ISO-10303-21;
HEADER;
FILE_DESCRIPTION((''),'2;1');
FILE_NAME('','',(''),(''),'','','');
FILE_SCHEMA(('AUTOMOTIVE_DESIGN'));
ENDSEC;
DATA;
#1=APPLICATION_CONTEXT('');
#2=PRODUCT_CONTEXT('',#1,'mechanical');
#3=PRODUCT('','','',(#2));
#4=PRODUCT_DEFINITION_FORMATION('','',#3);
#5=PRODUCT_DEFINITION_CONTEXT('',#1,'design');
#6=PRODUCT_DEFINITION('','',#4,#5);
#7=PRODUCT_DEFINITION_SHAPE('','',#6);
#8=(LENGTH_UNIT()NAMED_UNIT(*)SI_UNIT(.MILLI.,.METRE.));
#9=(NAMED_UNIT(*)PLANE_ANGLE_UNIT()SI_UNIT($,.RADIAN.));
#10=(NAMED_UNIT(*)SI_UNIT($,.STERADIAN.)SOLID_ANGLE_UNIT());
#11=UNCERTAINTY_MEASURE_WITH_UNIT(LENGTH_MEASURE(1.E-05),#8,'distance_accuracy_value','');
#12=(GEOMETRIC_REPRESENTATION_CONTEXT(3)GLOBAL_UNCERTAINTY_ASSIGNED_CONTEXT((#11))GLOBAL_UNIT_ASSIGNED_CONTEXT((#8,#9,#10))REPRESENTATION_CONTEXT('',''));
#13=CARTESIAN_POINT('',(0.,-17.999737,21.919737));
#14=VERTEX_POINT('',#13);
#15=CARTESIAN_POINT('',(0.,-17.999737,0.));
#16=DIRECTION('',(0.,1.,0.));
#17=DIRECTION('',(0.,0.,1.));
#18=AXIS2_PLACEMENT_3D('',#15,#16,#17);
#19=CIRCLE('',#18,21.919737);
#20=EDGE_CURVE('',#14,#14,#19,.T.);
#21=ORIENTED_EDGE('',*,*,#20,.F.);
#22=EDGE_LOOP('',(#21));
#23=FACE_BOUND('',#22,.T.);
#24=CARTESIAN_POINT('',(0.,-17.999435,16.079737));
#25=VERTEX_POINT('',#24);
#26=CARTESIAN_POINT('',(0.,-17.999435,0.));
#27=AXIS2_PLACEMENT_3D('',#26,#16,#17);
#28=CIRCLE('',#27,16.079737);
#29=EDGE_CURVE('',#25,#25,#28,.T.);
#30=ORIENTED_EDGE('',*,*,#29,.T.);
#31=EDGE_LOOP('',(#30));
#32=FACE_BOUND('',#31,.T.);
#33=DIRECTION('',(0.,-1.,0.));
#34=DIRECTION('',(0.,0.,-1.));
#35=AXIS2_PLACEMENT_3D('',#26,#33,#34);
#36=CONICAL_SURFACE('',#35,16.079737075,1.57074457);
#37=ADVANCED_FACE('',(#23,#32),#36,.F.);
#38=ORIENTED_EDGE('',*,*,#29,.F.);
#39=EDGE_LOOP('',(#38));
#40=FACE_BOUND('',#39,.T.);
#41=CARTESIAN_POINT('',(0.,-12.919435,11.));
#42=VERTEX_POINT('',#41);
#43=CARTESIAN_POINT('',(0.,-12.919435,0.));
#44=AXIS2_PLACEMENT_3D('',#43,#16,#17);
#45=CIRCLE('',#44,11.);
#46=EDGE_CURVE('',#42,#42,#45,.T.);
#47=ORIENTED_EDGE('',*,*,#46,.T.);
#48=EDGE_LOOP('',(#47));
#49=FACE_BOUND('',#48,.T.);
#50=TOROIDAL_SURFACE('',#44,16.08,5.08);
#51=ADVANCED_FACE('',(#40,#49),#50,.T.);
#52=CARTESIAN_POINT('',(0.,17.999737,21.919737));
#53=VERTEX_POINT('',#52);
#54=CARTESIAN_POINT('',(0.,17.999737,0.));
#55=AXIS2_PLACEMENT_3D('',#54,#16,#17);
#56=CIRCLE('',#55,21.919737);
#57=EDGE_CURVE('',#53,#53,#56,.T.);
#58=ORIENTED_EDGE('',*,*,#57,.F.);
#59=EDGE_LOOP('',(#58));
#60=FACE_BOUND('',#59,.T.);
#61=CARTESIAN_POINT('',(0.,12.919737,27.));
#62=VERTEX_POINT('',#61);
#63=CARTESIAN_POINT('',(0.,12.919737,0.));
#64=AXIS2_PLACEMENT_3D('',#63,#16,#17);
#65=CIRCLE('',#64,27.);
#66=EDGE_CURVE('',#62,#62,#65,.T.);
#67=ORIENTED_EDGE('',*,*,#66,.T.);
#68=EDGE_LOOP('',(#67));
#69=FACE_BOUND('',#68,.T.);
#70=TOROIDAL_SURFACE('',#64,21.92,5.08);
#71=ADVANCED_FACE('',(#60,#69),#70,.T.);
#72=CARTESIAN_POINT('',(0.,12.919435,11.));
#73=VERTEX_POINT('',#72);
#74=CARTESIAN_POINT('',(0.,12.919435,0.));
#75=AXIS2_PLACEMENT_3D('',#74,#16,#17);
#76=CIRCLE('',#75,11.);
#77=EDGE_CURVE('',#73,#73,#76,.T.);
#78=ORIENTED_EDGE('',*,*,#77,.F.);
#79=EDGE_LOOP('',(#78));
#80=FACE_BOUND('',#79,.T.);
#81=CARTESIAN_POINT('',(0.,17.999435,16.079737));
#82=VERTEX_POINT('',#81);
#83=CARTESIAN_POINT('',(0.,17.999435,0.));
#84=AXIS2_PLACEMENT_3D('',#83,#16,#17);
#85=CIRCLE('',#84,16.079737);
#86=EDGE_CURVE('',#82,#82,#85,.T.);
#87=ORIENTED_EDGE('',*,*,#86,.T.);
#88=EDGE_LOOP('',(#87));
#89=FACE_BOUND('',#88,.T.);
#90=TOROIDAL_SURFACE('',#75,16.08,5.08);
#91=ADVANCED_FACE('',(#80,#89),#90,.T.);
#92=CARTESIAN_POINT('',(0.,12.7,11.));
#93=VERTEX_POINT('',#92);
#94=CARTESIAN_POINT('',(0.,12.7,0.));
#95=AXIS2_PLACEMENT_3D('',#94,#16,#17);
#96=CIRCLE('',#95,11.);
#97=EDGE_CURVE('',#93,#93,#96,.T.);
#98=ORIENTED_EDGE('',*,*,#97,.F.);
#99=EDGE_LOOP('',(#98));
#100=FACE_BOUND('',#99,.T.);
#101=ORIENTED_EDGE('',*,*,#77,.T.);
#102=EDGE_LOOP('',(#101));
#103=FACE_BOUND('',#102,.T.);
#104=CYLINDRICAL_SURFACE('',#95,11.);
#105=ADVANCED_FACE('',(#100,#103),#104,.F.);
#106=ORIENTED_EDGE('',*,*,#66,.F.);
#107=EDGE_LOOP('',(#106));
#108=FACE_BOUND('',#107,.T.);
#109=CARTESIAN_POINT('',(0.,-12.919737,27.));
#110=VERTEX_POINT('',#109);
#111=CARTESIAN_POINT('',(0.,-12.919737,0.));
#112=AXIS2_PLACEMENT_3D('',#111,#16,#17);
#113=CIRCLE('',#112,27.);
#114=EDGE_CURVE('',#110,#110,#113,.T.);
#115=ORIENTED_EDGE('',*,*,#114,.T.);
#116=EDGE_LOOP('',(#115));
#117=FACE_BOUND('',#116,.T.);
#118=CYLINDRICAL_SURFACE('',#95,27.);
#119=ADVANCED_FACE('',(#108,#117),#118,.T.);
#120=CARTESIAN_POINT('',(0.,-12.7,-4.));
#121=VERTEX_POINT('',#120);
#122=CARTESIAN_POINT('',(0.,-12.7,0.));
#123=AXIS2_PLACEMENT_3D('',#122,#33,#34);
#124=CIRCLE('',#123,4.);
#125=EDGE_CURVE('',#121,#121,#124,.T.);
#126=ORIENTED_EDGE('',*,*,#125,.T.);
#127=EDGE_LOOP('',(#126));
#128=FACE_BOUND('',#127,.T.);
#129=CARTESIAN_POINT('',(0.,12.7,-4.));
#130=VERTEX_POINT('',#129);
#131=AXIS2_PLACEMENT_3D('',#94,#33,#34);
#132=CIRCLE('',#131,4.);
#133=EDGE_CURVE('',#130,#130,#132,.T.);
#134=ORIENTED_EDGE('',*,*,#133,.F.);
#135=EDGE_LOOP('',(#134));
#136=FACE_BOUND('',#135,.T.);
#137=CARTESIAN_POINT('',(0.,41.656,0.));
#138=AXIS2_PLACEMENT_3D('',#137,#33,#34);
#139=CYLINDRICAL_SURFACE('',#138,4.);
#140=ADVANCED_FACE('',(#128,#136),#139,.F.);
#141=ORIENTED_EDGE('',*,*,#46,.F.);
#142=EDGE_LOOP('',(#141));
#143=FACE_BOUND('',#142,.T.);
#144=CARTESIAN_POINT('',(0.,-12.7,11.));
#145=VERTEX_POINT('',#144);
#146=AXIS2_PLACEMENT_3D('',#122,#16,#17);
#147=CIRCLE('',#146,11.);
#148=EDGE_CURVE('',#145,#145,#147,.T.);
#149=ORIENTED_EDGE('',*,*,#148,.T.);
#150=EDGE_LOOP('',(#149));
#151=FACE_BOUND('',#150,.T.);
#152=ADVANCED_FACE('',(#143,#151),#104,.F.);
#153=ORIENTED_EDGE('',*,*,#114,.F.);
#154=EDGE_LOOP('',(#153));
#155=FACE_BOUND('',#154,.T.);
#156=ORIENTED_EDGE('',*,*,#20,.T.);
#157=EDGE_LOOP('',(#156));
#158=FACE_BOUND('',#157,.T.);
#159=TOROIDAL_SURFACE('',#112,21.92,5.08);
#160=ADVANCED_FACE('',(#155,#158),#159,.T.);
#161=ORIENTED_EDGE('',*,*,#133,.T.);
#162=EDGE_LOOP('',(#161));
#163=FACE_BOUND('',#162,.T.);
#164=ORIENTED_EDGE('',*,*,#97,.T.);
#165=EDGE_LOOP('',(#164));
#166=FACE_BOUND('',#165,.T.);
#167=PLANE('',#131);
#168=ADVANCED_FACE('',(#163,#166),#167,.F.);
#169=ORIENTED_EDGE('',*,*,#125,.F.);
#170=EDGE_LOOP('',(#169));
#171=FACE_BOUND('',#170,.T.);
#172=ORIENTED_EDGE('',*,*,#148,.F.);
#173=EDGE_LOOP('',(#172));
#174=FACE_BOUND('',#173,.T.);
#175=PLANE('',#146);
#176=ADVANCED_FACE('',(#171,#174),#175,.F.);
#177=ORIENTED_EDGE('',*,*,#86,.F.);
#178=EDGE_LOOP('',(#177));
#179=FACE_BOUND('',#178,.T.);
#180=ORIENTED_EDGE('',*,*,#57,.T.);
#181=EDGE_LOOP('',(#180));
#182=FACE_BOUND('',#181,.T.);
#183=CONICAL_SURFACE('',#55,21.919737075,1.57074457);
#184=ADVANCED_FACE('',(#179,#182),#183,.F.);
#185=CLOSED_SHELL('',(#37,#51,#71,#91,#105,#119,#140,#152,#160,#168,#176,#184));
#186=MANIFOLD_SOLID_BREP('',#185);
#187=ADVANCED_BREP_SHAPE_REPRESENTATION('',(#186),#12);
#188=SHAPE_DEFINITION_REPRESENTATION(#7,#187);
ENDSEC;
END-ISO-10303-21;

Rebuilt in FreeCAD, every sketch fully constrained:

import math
import FreeCAD as App
import Part
import Sketcher

V = App.Vector
Q = App.Units.Quantity

doc = App.newDocument("Part")
body = doc.addObject("PartDesign::Body", "Body")

sketch1 = body.newObject("Sketcher::SketchObject", "Sketch")
sketch1.AttachmentSupport = (doc.getObject("XY_Plane"), [""])
sketch1.MapMode = "FlatFace"
sketch1.addGeometry([
    Part.LineSegment(V(0, 12.7, 0), V(0, -12.7, 0)),
    Part.LineSegment(V(0, -12.7, 0), V(11, -12.7, 0)),
    Part.LineSegment(V(11, -12.7, 0), V(11, -12.919435, 0)),
    Part.ArcOfCircle(Part.Circle(V(16.08, -12.919435, 0), V(0, 0, 1), 5.08), math.radians(-180), math.radians(-90.002965)),
    Part.LineSegment(V(16.079737, -17.999435, 0), V(21.919737, -17.999737, 0)),
    Part.ArcOfCircle(Part.Circle(V(21.92, -12.919737, 0), V(0, 0, 1), 5.08), math.radians(-90.002965), math.radians(0)),
    Part.LineSegment(V(27, -12.919737, 0), V(27, 12.919737, 0)),
    Part.ArcOfCircle(Part.Circle(V(21.92, 12.919737, 0), V(0, 0, 1), 5.08), math.radians(0), math.radians(90.002965)),
    Part.LineSegment(V(21.919737, 17.999737, 0), V(16.079737, 17.999435, 0)),
    Part.ArcOfCircle(Part.Circle(V(16.08, 12.919435, 0), V(0, 0, 1), 5.08), math.radians(90.002965), math.radians(180)),
    Part.LineSegment(V(11, 12.919435, 0), V(11, 12.7, 0)),
    Part.LineSegment(V(11, 12.7, 0), V(0, 12.7, 0)),
], False)
sketch1.addConstraint([
    Sketcher.Constraint("Coincident", 0, 2, 1, 1),
    Sketcher.Constraint("Coincident", 1, 2, 2, 1),
    Sketcher.Constraint("Tangent", 2, 2, 3, 1),
    Sketcher.Constraint("Tangent", 3, 2, 4, 1),
    Sketcher.Constraint("Tangent", 4, 2, 5, 1),
    Sketcher.Constraint("Tangent", 5, 2, 6, 1),
    Sketcher.Constraint("Tangent", 6, 2, 7, 1),
    Sketcher.Constraint("Tangent", 7, 2, 8, 1),
    Sketcher.Constraint("Tangent", 8, 2, 9, 1),
    Sketcher.Constraint("Tangent", 9, 2, 10, 1),
    Sketcher.Constraint("Coincident", 10, 2, 11, 1),
    Sketcher.Constraint("Coincident", 11, 2, 0, 1),
    Sketcher.Constraint("Vertical", 0),
    Sketcher.Constraint("Horizontal", 1),
    Sketcher.Constraint("Vertical", 2),
    Sketcher.Constraint("Vertical", 6),
    Sketcher.Constraint("Vertical", 10),
    Sketcher.Constraint("Horizontal", 11),
    Sketcher.Constraint("Equal", 3, 5),
    Sketcher.Constraint("Equal", 5, 7),
    Sketcher.Constraint("Equal", 7, 9),
    Sketcher.Constraint("Symmetric", 0, 2, 11, 2, -1, 1),
    Sketcher.Constraint("Symmetric", 3, 3, 9, 3, -1),
    Sketcher.Constraint("Vertical", 4, 2, 7, 2),
    Sketcher.Constraint("Radius", 3, Q("0.2 in")),
    Sketcher.Constraint("DistanceY", 0, 2, 0, 1, Q("1 in")),
    Sketcher.Constraint("DistanceX", 1, 1, 1, 2, Q("11 mm")),
    Sketcher.Constraint("Distance", 4, Q("5.84 mm")),
    Sketcher.Constraint("DistanceY", 2, 2, 2, 1, Q("0.219435 mm")),
    Sketcher.Constraint("DistanceY", 6, 1, 6, 2, Q("25.839474 mm")),
])
revolution = body.newObject("PartDesign::Revolution", "Revolution")
revolution.Profile = sketch1
revolution.ReferenceAxis = (sketch1, ["V_Axis"])
revolution.Angle = 360

sketch2 = body.newObject("Sketcher::SketchObject", "Sketch001")
sketch2.AttachmentSupport = (doc.getObject("XZ_Plane"), [""])
sketch2.MapMode = "FlatFace"
sketch2.AttachmentOffset = App.Placement(V(0, 0, 0.5 * 25.4), App.Rotation())
sketch2.addGeometry(Part.Circle(V(0, 0, 0), V(0, 0, 1), 4), False)
sketch2.addConstraint([
    Sketcher.Constraint("Coincident", 0, 3, -1, 1),
    Sketcher.Constraint("Diameter", 0, Q("8 mm")),
])
pocket1 = body.newObject("PartDesign::Pocket", "Pocket")
pocket1.Profile = sketch2
pocket1.Length = Q("2.14 in")

doc.recompute()
